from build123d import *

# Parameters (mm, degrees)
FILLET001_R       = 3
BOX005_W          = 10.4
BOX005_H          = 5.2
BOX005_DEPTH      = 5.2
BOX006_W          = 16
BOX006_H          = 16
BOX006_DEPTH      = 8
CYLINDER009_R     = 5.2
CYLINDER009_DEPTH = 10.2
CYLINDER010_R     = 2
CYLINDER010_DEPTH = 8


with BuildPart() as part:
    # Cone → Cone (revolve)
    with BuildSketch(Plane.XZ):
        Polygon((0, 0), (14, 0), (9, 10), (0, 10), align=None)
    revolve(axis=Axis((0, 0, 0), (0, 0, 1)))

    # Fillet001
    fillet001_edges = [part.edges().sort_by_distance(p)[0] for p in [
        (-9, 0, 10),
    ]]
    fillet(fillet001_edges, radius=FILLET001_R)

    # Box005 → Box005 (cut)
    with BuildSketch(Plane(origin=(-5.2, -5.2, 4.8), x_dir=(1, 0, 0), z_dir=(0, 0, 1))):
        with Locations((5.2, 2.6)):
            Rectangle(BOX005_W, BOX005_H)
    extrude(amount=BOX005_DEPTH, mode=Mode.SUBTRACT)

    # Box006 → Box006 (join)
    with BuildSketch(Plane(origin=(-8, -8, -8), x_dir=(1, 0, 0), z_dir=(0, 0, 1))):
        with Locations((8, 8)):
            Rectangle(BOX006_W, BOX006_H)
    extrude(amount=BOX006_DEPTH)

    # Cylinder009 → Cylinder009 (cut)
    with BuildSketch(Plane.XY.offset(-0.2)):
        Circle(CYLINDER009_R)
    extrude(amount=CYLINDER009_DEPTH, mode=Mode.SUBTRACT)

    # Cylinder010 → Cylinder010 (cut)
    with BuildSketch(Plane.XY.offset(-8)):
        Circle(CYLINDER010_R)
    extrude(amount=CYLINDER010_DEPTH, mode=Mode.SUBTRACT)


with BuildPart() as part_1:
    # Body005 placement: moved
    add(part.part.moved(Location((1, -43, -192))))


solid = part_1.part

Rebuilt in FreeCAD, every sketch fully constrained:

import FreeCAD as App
import Part
import Sketcher
from FreeCAD import Vector


def edges_at(feature, points):
    """Names of the edges that pass closest to the given points."""
    edges = feature.Shape.Edges
    near = lambda p: min(range(len(edges)), key=lambda i: edges[i].distToShape(Part.Vertex(*p))[0])
    return sorted({f"Edge{near(p) + 1}" for p in points})

doc = App.newDocument("Part")
body = doc.addObject("PartDesign::Body", "Body")

# Sketch on XZ plane
sketch1 = body.newObject("Sketcher::SketchObject", "Sketch")
sketch1.AttachmentSupport = (doc.getObject("XZ_Plane"), [""])
sketch1.MapMode = "FlatFace"
sketch1.addGeometry([
    Part.LineSegment(Vector(0, 0, 0), Vector(14, 0, 0)),
    Part.LineSegment(Vector(14, 0, 0), Vector(9, 10, 0)),
    Part.LineSegment(Vector(9, 10, 0), Vector(0, 10, 0)),
    Part.LineSegment(Vector(0, 10, 0), Vector(0, 0, 0)),
], False)
sketch1.addConstraint([
    Sketcher.Constraint("Coincident", 0, 2, 1, 1),
    Sketcher.Constraint("Coincident", 1, 2, 2, 1),
    Sketcher.Constraint("Coincident", 2, 2, 3, 1),
    Sketcher.Constraint("Coincident", 3, 2, 0, 1),
    Sketcher.Constraint("Horizontal", 0),
    Sketcher.Constraint("Horizontal", 2),
    Sketcher.Constraint("Vertical", 3),
    Sketcher.Constraint("Coincident", 3, 2, -1, 1),
    Sketcher.Constraint("DistanceX", 0, 1, 0, 2, 14.0),
    Sketcher.Constraint("DistanceX", 2, 2, 2, 1, 9.0),
    Sketcher.Constraint("DistanceY", 3, 2, 3, 1, 10.0),
])
revolution = body.newObject("PartDesign::Revolution", "Revolution")
revolution.Profile = sketch1
revolution.ReferenceAxis = (sketch1, ["V_Axis"])
revolution.Angle = 360
doc.recompute()

fillet = body.newObject("PartDesign::Fillet", "Fillet")
fillet.Base = (revolution, edges_at(revolution, [(-9, 0, 10)]))
fillet.Radius = 3

# Sketch on XY plane
sketch2 = body.newObject("Sketcher::SketchObject", "Sketch001")
sketch2.AttachmentSupport = (doc.getObject("XY_Plane"), [""])
sketch2.MapMode = "FlatFace"
sketch2.AttachmentOffset = App.Placement(Vector(0, 0, 4.8), App.Rotation())
sketch2.addGeometry([
    Part.LineSegment(Vector(-5.2, 0, 0), Vector(-5.2, -5.2, 0)),
    Part.LineSegment(Vector(-5.2, -5.2, 0), Vector(5.2, -5.2, 0)),
    Part.LineSegment(Vector(5.2, -5.2, 0), Vector(5.2, 0, 0)),
    Part.LineSegment(Vector(5.2, 0, 0), Vector(-5.2, 0, 0)),
], False)
sketch2.addConstraint([
    Sketcher.Constraint("Coincident", 0, 2, 1, 1),
    Sketcher.Constraint("Coincident", 1, 2, 2, 1),
    Sketcher.Constraint("Coincident", 2, 2, 3, 1),
    Sketcher.Constraint("Coincident", 3, 2, 0, 1),
    Sketcher.Constraint("Vertical", 0),
    Sketcher.Constraint("Horizontal", 1),
    Sketcher.Constraint("Vertical", 2),
    Sketcher.Constraint("Horizontal", 3),
    Sketcher.Constraint("Symmetric", 2, 2, 3, 2, -1, 1),
    Sketcher.Constraint("DistanceX", 1, 1, 1, 2, 10.4),
    Sketcher.Constraint("DistanceY", 0, 2, 0, 1, 5.2),
])
pocket1 = body.newObject("PartDesign::Pocket", "Pocket")
pocket1.Profile = sketch2
pocket1.Length = 5.2
pocket1.Reversed = True

# Sketch on XY plane
sketch3 = body.newObject("Sketcher::SketchObject", "Sketch002")
sketch3.AttachmentSupport = (doc.getObject("XY_Plane"), [""])
sketch3.MapMode = "FlatFace"
sketch3.AttachmentOffset = App.Placement(Vector(0, 0, -8), App.Rotation())
sketch3.addGeometry([
    Part.LineSegment(Vector(-8, 8, 0), Vector(-8, -8, 0)),
    Part.LineSegment(Vector(-8, -8, 0), Vector(8, -8, 0)),
    Part.LineSegment(Vector(8, -8, 0), Vector(8, 8, 0)),
    Part.LineSegment(Vector(8, 8, 0), Vector(-8, 8, 0)),
], False)
sketch3.addConstraint([
    Sketcher.Constraint("Coincident", 0, 2, 1, 1),
    Sketcher.Constraint("Coincident", 1, 2, 2, 1),
    Sketcher.Constraint("Coincident", 2, 2, 3, 1),
    Sketcher.Constraint("Coincident", 3, 2, 0, 1),
    Sketcher.Constraint("Vertical", 0),
    Sketcher.Constraint("Horizontal", 1),
    Sketcher.Constraint("Vertical", 2),
    Sketcher.Constraint("Horizontal", 3),
    Sketcher.Constraint("Symmetric", 0, 2, 2, 2, -1, 1),
    Sketcher.Constraint("Equal", 3, 0),
    Sketcher.Constraint("DistanceX", 1, 1, 1, 2, 16.0),
])
pad1 = body.newObject("PartDesign::Pad", "Pad")
pad1.Profile = sketch3
pad1.Length = 8

# Sketch on XY plane
sketch4 = body.newObject("Sketcher::SketchObject", "Sketch003")
sketch4.AttachmentSupport = (doc.getObject("XY_Plane"), [""])
sketch4.MapMode = "FlatFace"
sketch4.AttachmentOffset = App.Placement(Vector(0, 0, -0.2), App.Rotation())
sketch4.addGeometry(Part.Circle(Vector(0, 0, 0), Vector(0, 0, 1), 5.2), False)
sketch4.addConstraint([
    Sketcher.Constraint("Coincident", 0, 3, -1, 1),
    Sketcher.Constraint("Diameter", 0, 10.4),
])
pocket2 = body.newObject("PartDesign::Pocket", "Pocket001")
pocket2.Profile = sketch4
pocket2.Length = 10.2
pocket2.Reversed = True

# Sketch on XY plane
sketch5 = body.newObject("Sketcher::SketchObject", "Sketch004")
sketch5.AttachmentSupport = (doc.getObject("XY_Plane"), [""])
sketch5.MapMode = "FlatFace"
sketch5.AttachmentOffset = App.Placement(Vector(0, 0, -8), App.Rotation())
sketch5.addGeometry(Part.Circle(Vector(0, 0, 0), Vector(0, 0, 1), 2), False)
sketch5.addConstraint([
    Sketcher.Constraint("Coincident", 0, 3, -1, 1),
    Sketcher.Constraint("Diameter", 0, 4.0),
])
pocket3 = body.newObject("PartDesign::Pocket", "Pocket002")
pocket3.Profile = sketch5
pocket3.Length = 8
pocket3.Reversed = True
body2 = doc.addObject("PartDesign::Body", "Body001")
doc.recompute()

body.Placement = App.Placement(Vector(1, -43, -192), App.Rotation(Vector(0, 0, 1), 0))
boolean = body2.newObject("PartDesign::Boolean", "Boolean")
boolean.Type = "Fuse"
boolean.addObjects([body])

doc.recompute()
